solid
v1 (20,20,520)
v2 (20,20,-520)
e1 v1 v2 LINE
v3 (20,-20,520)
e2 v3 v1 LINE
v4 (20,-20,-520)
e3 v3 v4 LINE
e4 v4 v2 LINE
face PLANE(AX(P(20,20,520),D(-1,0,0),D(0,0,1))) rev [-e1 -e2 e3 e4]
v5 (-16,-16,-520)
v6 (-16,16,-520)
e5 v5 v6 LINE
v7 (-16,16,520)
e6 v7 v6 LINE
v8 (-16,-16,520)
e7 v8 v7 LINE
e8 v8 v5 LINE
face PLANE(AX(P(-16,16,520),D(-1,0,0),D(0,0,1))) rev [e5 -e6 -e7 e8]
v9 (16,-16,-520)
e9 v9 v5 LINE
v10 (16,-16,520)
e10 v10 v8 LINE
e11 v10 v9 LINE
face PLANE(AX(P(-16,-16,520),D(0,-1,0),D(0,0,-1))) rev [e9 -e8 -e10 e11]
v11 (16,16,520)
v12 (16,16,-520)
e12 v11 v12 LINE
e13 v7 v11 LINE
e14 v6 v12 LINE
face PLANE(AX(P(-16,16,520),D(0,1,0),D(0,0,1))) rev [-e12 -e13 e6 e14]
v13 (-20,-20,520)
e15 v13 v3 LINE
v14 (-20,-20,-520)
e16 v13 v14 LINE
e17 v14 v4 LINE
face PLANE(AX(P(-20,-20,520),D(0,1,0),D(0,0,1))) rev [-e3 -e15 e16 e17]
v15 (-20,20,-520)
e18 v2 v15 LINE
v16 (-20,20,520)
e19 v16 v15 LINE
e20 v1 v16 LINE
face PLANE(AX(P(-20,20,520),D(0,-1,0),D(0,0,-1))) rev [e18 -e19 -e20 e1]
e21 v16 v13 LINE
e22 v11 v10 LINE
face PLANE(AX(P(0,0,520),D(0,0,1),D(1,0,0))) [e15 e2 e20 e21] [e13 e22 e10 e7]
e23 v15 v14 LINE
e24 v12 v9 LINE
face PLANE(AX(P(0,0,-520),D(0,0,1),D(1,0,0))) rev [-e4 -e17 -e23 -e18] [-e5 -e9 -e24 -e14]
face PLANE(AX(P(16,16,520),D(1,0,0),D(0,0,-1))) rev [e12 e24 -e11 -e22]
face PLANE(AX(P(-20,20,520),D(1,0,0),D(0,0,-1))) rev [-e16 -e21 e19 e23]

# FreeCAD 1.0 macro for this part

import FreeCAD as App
import Part
import Sketcher

V = App.Vector
Q = App.Units.Quantity

doc = App.newDocument("Part")
params = doc.addObject("Spreadsheet::Sheet", "Params")
for row, (alias, value) in enumerate([
    ("sketch1_width", "40 mm"),
    ("sketch1_width2", "32 mm"),
], start=1):
    params.set(f"A{row}", alias)
    params.set(f"B{row}", "=" + value)
    params.setAlias(f"B{row}", alias)

body = doc.addObject("PartDesign::Body", "Body")

# Sketch on XY plane
sketch1 = body.newObject("Sketcher::SketchObject", "Sketch")
sketch1.AttachmentSupport = (doc.getObject("XY_Plane"), [""])
sketch1.MapMode = "FlatFace"
sketch1.addGeometry(Part.LineSegment(V(-20, 20, 0), V(-20, -20, 0)), False)
sketch1.addGeometry(Part.LineSegment(V(-20, -20, 0), V(20, -20, 0)), False)
sketch1.addGeometry(Part.LineSegment(V(20, -20, 0), V(20, 20, 0)), False)
sketch1.addGeometry(Part.LineSegment(V(20, 20, 0), V(-20, 20, 0)), False)
sketch1.addGeometry(Part.LineSegment(V(16, -16, 0), V(-16, -16, 0)), False)
sketch1.addGeometry(Part.LineSegment(V(-16, -16, 0), V(-16, 16, 0)), False)
sketch1.addGeometry(Part.LineSegment(V(-16, 16, 0), V(16, 16, 0)), False)
sketch1.addGeometry(Part.LineSegment(V(16, 16, 0), V(16, -16, 0)), False)
sketch1.addConstraint(Sketcher.Constraint("Coincident", 0, 2, 1, 1))
sketch1.addConstraint(Sketcher.Constraint("Coincident", 1, 2, 2, 1))
sketch1.addConstraint(Sketcher.Constraint("Coincident", 2, 2, 3, 1))
sketch1.addConstraint(Sketcher.Constraint("Coincident", 3, 2, 0, 1))
sketch1.addConstraint(Sketcher.Constraint("Coincident", 4, 2, 5, 1))
sketch1.addConstraint(Sketcher.Constraint("Coincident", 5, 2, 6, 1))
sketch1.addConstraint(Sketcher.Constraint("Coincident", 6, 2, 7, 1))
sketch1.addConstraint(Sketcher.Constraint("Coincident", 7, 2, 4, 1))
sketch1.addConstraint(Sketcher.Constraint("Vertical", 0))
sketch1.addConstraint(Sketcher.Constraint("Horizontal", 1))
sketch1.addConstraint(Sketcher.Constraint("Vertical", 2))
sketch1.addConstraint(Sketcher.Constraint("Horizontal", 3))
sketch1.addConstraint(Sketcher.Constraint("Horizontal", 4))
sketch1.addConstraint(Sketcher.Constraint("Vertical", 5))
sketch1.addConstraint(Sketcher.Constraint("Horizontal", 6))
sketch1.addConstraint(Sketcher.Constraint("Vertical", 7))
sketch1.addConstraint(Sketcher.Constraint("Symmetric", 0, 2, 2, 2, -1, 1))
sketch1.addConstraint(Sketcher.Constraint("Symmetric", 4, 2, 6, 2, -1, 1))
sketch1.addConstraint(Sketcher.Constraint("Equal", 3, 0))
sketch1.addConstraint(Sketcher.Constraint("Equal", 6, 5))
sketch1.addConstraint(Sketcher.Constraint("DistanceX", 1, 1, 1, 2, Q("40 mm")))
sketch1.addConstraint(Sketcher.Constraint("DistanceX", 4, 2, 4, 1, Q("32 mm")))
sketch1.setExpression("Constraints[20]", "Params.sketch1_width")
sketch1.setExpression("Constraints[21]", "Params.sketch1_width2")

# Sketch on XZ plane
sketch2 = body.newObject("Sketcher::SketchObject", "Sketch001")
sketch2.AttachmentSupport = (doc.getObject("XZ_Plane"), [""])
sketch2.MapMode = "FlatFace"
sketch2.addGeometry(Part.BSplineCurve([V(0, -520, 0), V(0, 520, 0)], [2, 2], [0, 1], False, 1, [1, 1], False), False)
sketch2.addConstraint(Sketcher.Constraint("Block", 0))
doc.recompute()

additivepipe = body.newObject("PartDesign::AdditivePipe", "AdditivePipe")
additivepipe.Profile = sketch1
additivepipe.Spine = (sketch2, ["Edge1"])

doc.recompute()
